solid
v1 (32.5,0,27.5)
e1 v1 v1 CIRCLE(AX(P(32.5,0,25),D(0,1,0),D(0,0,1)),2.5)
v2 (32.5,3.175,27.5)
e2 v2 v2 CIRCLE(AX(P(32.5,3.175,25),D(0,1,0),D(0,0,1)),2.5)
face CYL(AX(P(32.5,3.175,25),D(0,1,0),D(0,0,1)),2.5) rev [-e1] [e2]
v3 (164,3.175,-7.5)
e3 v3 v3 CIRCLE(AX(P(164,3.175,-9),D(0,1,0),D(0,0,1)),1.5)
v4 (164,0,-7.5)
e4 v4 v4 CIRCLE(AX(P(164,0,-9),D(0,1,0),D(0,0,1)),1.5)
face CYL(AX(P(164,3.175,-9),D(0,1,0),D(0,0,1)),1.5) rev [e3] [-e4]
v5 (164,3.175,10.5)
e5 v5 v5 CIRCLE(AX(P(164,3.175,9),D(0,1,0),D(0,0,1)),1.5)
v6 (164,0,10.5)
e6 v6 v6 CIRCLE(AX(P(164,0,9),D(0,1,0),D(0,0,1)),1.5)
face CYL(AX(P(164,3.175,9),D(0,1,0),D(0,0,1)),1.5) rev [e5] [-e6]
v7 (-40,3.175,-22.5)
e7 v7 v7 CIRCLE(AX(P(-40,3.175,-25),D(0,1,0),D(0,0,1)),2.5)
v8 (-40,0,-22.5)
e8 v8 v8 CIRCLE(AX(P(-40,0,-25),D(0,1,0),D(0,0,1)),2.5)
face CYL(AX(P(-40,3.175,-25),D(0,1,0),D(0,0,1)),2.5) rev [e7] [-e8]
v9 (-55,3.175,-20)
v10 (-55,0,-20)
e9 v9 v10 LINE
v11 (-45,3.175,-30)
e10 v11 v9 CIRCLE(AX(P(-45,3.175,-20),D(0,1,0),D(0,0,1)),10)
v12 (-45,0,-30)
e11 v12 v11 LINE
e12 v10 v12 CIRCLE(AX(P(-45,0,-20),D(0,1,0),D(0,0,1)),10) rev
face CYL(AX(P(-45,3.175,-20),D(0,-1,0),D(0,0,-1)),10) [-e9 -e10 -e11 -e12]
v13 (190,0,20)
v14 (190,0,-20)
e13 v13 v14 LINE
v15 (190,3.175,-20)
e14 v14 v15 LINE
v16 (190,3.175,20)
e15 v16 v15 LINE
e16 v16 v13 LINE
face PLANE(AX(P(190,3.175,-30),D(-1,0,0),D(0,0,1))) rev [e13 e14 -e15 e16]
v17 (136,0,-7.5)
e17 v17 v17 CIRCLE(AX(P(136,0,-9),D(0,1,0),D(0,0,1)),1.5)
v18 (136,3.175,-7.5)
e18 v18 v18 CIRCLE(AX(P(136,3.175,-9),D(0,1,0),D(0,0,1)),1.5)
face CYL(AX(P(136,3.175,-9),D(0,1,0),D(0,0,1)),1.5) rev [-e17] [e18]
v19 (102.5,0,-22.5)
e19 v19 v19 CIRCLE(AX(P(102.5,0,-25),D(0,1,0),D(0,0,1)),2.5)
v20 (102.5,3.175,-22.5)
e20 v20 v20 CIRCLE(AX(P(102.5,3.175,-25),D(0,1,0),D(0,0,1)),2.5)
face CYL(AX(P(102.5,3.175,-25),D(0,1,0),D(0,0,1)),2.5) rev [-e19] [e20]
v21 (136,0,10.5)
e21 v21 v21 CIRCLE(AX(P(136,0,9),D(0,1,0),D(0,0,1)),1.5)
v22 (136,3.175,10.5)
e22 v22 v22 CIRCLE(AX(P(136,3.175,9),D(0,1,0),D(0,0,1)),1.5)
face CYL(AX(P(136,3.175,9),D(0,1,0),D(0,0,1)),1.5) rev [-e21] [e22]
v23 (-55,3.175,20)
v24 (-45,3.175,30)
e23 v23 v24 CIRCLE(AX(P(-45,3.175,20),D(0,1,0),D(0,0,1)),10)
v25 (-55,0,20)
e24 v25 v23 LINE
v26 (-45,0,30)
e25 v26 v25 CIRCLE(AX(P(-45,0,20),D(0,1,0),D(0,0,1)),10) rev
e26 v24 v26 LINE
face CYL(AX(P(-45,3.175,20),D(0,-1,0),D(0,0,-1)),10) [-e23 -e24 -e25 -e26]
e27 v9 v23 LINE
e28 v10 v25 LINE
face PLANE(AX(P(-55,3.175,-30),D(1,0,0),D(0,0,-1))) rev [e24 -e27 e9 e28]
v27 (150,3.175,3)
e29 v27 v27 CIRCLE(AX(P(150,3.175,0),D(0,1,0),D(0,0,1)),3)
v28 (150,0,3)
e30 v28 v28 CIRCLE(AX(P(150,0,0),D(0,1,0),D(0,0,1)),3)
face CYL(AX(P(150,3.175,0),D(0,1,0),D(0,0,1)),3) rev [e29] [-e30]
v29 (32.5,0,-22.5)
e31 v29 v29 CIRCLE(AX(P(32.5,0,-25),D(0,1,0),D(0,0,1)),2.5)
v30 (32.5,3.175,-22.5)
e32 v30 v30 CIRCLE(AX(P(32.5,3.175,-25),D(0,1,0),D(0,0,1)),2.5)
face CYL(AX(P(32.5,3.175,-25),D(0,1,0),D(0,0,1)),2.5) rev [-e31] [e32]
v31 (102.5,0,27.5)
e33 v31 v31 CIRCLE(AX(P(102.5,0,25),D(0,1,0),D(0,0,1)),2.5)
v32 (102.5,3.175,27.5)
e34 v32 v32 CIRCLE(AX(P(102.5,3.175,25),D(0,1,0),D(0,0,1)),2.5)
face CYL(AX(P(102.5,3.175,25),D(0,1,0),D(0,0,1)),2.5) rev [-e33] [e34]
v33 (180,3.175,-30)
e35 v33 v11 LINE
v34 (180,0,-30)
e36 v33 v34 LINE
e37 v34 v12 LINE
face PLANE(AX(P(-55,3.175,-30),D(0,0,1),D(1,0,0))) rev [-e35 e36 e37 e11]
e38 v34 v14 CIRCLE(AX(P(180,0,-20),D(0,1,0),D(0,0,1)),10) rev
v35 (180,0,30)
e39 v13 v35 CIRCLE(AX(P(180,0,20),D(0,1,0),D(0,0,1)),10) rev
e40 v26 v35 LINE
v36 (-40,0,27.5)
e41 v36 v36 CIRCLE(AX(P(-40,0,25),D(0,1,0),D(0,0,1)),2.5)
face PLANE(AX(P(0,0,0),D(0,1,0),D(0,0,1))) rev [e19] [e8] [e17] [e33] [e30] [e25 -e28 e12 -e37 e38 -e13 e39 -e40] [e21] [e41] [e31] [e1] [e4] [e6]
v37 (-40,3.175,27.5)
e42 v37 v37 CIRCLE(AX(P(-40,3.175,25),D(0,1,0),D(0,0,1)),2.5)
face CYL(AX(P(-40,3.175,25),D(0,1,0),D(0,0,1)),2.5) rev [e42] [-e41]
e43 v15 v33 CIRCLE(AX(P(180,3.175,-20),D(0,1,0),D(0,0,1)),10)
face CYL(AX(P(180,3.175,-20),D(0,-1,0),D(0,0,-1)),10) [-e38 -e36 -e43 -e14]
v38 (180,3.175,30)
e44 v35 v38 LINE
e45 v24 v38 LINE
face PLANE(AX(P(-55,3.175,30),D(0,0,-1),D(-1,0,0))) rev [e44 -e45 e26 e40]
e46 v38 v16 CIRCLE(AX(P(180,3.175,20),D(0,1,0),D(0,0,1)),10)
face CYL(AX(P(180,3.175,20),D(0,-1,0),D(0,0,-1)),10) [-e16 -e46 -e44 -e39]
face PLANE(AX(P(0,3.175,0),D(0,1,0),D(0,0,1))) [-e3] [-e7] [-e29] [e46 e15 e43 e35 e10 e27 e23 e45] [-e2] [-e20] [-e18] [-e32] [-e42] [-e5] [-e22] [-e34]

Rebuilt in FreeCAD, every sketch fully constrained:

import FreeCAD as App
import Part
import Sketcher
from FreeCAD import Vector


def edges_at(feature, points):
    """Names of the edges that pass closest to the given points."""
    edges = feature.Shape.Edges
    near = lambda p: min(range(len(edges)), key=lambda i: edges[i].distToShape(Part.Vertex(*p))[0])
    return sorted({f"Edge{near(p) + 1}" for p in points})

doc = App.newDocument("Part")
params = doc.addObject("Spreadsheet::Sheet", "Params")
for row, (alias, value) in enumerate([
    ("sketch1_width", "245 mm"),
    ("sketch1_height", "60 mm"),
    ("pad1_length", "3.175 mm"),
    ("fillet_radius", "10 mm"),
    ("sketch2_diameter", "6 mm"),
    ("hole_diameter", "6 mm"),
    ("sketch3_diameter", "3 mm"),
    ("hole2_diameter", "3 mm"),
    ("sketch4_diameter", "5 mm"),
    ("hole3_diameter", "5 mm"),
], start=1):
    params.set(f"A{row}", alias)
    params.set(f"B{row}", "=" + value)
    params.setAlias(f"B{row}", alias)

body = doc.addObject("PartDesign::Body", "Body")

# Sketch on XZ plane
sketch1 = body.newObject("Sketcher::SketchObject", "Sketch")
sketch1.AttachmentSupport = (doc.getObject("XZ_Plane"), [""])
sketch1.MapMode = "FlatFace"
sketch1.addGeometry(Part.LineSegment(Vector(-55, -30, 0), Vector(-55, 30, 0)), False)
sketch1.addGeometry(Part.LineSegment(Vector(-55, 30, 0), Vector(190, 30, 0)), False)
sketch1.addGeometry(Part.LineSegment(Vector(190, 30, 0), Vector(190, -30, 0)), False)
sketch1.addGeometry(Part.LineSegment(Vector(190, -30, 0), Vector(-55, -30, 0)), False)
sketch1.addConstraint(Sketcher.Constraint("Coincident", 0, 2, 1, 1))
sketch1.addConstraint(Sketcher.Constraint("Coincident", 1, 2, 2, 1))
sketch1.addConstraint(Sketcher.Constraint("Coincident", 2, 2, 3, 1))
sketch1.addConstraint(Sketcher.Constraint("Coincident", 3, 2, 0, 1))
sketch1.addConstraint(Sketcher.Constraint("Vertical", 0))
sketch1.addConstraint(Sketcher.Constraint("Horizontal", 1))
sketch1.addConstraint(Sketcher.Constraint("Vertical", 2))
sketch1.addConstraint(Sketcher.Constraint("Horizontal", 3))
sketch1.addConstraint(Sketcher.Constraint("DistanceX", 1, 1, 1, 2, 245.0))
sketch1.addConstraint(Sketcher.Constraint("DistanceY", 0, 1, 0, 2, 60.0))
sketch1.addConstraint(Sketcher.Constraint("DistanceX", 0, 2, -1, 1, 55.0))
sketch1.addConstraint(Sketcher.Constraint("DistanceY", -1, 1, 0, 2, 30.0))
sketch1.setExpression("Constraints[8]", "Params.sketch1_width")
sketch1.setExpression("Constraints[9]", "Params.sketch1_height")
pad1 = body.newObject("PartDesign::Pad", "Pad")
pad1.Profile = sketch1
pad1.setExpression("Length", "Params.pad1_length")
pad1.Reversed = True
doc.recompute()

fillet = body.newObject("PartDesign::Fillet", "Fillet")
fillet.Base = (pad1, edges_at(pad1, [
    (-55, 1.587, -30),
    (190, 1.587, -30),
    (190, 1.587, 30),
    (-55, 1.587, 30),
]))
fillet.setExpression("Radius", "Params.fillet_radius")

# Sketch on XZ plane
sketch2 = body.newObject("Sketcher::SketchObject", "Sketch001")
sketch2.AttachmentSupport = (doc.getObject("XZ_Plane"), [""])
sketch2.MapMode = "FlatFace"
sketch2.AttachmentOffset = App.Placement(Vector(0, 0, -3.175), App.Rotation())
sketch2.addGeometry(Part.Circle(Vector(150, 0, 0), Vector(0, 0, 1), 3), False)
sketch2.addConstraint(Sketcher.Constraint("PointOnObject", 0, 3, -1))
sketch2.addConstraint(Sketcher.Constraint("Diameter", 0, 6.0))
sketch2.addConstraint(Sketcher.Constraint("DistanceX", -1, 1, 0, 3, 150.0))
sketch2.setExpression("Constraints[1]", "Params.sketch2_diameter")
doc.recompute()
hole = body.newObject("PartDesign::Hole", "Hole")
hole.Profile = sketch2
hole.ThreadType = "None"
hole.setExpression("Diameter", "Params.hole_diameter")
hole.DepthType = "ThroughAll"
hole.Reversed = True

# Sketch on XZ plane
sketch3 = body.newObject("Sketcher::SketchObject", "Sketch002")
sketch3.AttachmentSupport = (doc.getObject("XZ_Plane"), [""])
sketch3.MapMode = "FlatFace"
sketch3.AttachmentOffset = App.Placement(Vector(0, 0, -3.175), App.Rotation())
sketch3.addGeometry(Part.Circle(Vector(164, 9, 0), Vector(0, 0, 1), 1.5), False)
sketch3.addGeometry(Part.Circle(Vector(136, 9, 0), Vector(0, 0, 1), 1.5), False)
sketch3.addGeometry(Part.Circle(Vector(136, -9, 0), Vector(0, 0, 1), 1.5), False)
sketch3.addGeometry(Part.Circle(Vector(164, -9, 0), Vector(0, 0, 1), 1.5), False)
sketch3.addConstraint(Sketcher.Constraint("Equal", 0, 1))
sketch3.addConstraint(Sketcher.Constraint("Equal", 1, 2))
sketch3.addConstraint(Sketcher.Constraint("Equal", 2, 3))
sketch3.addConstraint(Sketcher.Constraint("Symmetric", 1, 3, 2, 3, -1))
sketch3.addConstraint(Sketcher.Constraint("Symmetric", 0, 3, 3, 3, -1))
sketch3.addConstraint(Sketcher.Constraint("Horizontal", 0, 3, 1, 3))
sketch3.addConstraint(Sketcher.Constraint("Diameter", 0, 3.0))
sketch3.addConstraint(Sketcher.Constraint("DistanceX", -1, 1, 0, 3, 164.0))
sketch3.addConstraint(Sketcher.Constraint("DistanceY", -1, 1, 0, 3, 9.0))
sketch3.addConstraint(Sketcher.Constraint("DistanceX", -1, 1, 1, 3, 136.0))
sketch3.setExpression("Constraints[6]", "Params.sketch3_diameter")
doc.recompute()
hole2 = body.newObject("PartDesign::Hole", "Hole001")
hole2.Profile = sketch3
hole2.ThreadType = "None"
hole2.setExpression("Diameter", "Params.hole2_diameter")
hole2.DepthType = "ThroughAll"
hole2.Reversed = True

# Sketch on XZ plane
sketch4 = body.newObject("Sketcher::SketchObject", "Sketch003")
sketch4.AttachmentSupport = (doc.getObject("XZ_Plane"), [""])
sketch4.MapMode = "FlatFace"
sketch4.AttachmentOffset = App.Placement(Vector(0, 0, -3.175), App.Rotation())
sketch4.addGeometry(Part.Circle(Vector(32.5, 25, 0), Vector(0, 0, 1), 2.5), False)
sketch4.addGeometry(Part.Circle(Vector(102.5, 25, 0), Vector(0, 0, 1), 2.5), False)
sketch4.addGeometry(Part.Circle(Vector(102.5, -25, 0), Vector(0, 0, 1), 2.5), False)
sketch4.addGeometry(Part.Circle(Vector(32.5, -25, 0), Vector(0, 0, 1), 2.5), False)
sketch4.addGeometry(Part.Circle(Vector(-40, 25, 0), Vector(0, 0, 1), 2.5), False)
sketch4.addGeometry(Part.Circle(Vector(-40, -25, 0), Vector(0, 0, 1), 2.5), False)
sketch4.addConstraint(Sketcher.Constraint("Equal", 0, 1))
sketch4.addConstraint(Sketcher.Constraint("Equal", 1, 2))
sketch4.addConstraint(Sketcher.Constraint("Equal", 2, 3))
sketch4.addConstraint(Sketcher.Constraint("Equal", 3, 4))
sketch4.addConstraint(Sketcher.Constraint("Equal", 4, 5))
sketch4.addConstraint(Sketcher.Constraint("Symmetric", 1, 3, 2, 3, -1))
sketch4.addConstraint(Sketcher.Constraint("Symmetric", 0, 3, 3, 3, -1))
sketch4.addConstraint(Sketcher.Constraint("Symmetric", 4, 3, 5, 3, -1))
sketch4.addConstraint(Sketcher.Constraint("Horizontal", 0, 3, 1, 3))
sketch4.addConstraint(Sketcher.Constraint("Horizontal", 1, 3, 4, 3))
sketch4.addConstraint(Sketcher.Constraint("Diameter", 0, 5.0))
sketch4.addConstraint(Sketcher.Constraint("DistanceY", -1, 1, 0, 3, 25.0))
sketch4.addConstraint(Sketcher.Constraint("DistanceX", 4, 3, -1, 1, 40.0))
sketch4.addConstraint(Sketcher.Constraint("DistanceX", 0, 3, 1, 3, 70.0))
sketch4.addConstraint(Sketcher.Constraint("DistanceX", -1, 1, 0, 3, 32.5))
sketch4.setExpression("Constraints[10]", "Params.sketch4_diameter")
doc.recompute()
hole3 = body.newObject("PartDesign::Hole", "Hole002")
hole3.Profile = sketch4
hole3.ThreadType = "None"
hole3.setExpression("Diameter", "Params.hole3_diameter")
hole3.DepthType = "ThroughAll"
hole3.Reversed = True

doc.recompute()
